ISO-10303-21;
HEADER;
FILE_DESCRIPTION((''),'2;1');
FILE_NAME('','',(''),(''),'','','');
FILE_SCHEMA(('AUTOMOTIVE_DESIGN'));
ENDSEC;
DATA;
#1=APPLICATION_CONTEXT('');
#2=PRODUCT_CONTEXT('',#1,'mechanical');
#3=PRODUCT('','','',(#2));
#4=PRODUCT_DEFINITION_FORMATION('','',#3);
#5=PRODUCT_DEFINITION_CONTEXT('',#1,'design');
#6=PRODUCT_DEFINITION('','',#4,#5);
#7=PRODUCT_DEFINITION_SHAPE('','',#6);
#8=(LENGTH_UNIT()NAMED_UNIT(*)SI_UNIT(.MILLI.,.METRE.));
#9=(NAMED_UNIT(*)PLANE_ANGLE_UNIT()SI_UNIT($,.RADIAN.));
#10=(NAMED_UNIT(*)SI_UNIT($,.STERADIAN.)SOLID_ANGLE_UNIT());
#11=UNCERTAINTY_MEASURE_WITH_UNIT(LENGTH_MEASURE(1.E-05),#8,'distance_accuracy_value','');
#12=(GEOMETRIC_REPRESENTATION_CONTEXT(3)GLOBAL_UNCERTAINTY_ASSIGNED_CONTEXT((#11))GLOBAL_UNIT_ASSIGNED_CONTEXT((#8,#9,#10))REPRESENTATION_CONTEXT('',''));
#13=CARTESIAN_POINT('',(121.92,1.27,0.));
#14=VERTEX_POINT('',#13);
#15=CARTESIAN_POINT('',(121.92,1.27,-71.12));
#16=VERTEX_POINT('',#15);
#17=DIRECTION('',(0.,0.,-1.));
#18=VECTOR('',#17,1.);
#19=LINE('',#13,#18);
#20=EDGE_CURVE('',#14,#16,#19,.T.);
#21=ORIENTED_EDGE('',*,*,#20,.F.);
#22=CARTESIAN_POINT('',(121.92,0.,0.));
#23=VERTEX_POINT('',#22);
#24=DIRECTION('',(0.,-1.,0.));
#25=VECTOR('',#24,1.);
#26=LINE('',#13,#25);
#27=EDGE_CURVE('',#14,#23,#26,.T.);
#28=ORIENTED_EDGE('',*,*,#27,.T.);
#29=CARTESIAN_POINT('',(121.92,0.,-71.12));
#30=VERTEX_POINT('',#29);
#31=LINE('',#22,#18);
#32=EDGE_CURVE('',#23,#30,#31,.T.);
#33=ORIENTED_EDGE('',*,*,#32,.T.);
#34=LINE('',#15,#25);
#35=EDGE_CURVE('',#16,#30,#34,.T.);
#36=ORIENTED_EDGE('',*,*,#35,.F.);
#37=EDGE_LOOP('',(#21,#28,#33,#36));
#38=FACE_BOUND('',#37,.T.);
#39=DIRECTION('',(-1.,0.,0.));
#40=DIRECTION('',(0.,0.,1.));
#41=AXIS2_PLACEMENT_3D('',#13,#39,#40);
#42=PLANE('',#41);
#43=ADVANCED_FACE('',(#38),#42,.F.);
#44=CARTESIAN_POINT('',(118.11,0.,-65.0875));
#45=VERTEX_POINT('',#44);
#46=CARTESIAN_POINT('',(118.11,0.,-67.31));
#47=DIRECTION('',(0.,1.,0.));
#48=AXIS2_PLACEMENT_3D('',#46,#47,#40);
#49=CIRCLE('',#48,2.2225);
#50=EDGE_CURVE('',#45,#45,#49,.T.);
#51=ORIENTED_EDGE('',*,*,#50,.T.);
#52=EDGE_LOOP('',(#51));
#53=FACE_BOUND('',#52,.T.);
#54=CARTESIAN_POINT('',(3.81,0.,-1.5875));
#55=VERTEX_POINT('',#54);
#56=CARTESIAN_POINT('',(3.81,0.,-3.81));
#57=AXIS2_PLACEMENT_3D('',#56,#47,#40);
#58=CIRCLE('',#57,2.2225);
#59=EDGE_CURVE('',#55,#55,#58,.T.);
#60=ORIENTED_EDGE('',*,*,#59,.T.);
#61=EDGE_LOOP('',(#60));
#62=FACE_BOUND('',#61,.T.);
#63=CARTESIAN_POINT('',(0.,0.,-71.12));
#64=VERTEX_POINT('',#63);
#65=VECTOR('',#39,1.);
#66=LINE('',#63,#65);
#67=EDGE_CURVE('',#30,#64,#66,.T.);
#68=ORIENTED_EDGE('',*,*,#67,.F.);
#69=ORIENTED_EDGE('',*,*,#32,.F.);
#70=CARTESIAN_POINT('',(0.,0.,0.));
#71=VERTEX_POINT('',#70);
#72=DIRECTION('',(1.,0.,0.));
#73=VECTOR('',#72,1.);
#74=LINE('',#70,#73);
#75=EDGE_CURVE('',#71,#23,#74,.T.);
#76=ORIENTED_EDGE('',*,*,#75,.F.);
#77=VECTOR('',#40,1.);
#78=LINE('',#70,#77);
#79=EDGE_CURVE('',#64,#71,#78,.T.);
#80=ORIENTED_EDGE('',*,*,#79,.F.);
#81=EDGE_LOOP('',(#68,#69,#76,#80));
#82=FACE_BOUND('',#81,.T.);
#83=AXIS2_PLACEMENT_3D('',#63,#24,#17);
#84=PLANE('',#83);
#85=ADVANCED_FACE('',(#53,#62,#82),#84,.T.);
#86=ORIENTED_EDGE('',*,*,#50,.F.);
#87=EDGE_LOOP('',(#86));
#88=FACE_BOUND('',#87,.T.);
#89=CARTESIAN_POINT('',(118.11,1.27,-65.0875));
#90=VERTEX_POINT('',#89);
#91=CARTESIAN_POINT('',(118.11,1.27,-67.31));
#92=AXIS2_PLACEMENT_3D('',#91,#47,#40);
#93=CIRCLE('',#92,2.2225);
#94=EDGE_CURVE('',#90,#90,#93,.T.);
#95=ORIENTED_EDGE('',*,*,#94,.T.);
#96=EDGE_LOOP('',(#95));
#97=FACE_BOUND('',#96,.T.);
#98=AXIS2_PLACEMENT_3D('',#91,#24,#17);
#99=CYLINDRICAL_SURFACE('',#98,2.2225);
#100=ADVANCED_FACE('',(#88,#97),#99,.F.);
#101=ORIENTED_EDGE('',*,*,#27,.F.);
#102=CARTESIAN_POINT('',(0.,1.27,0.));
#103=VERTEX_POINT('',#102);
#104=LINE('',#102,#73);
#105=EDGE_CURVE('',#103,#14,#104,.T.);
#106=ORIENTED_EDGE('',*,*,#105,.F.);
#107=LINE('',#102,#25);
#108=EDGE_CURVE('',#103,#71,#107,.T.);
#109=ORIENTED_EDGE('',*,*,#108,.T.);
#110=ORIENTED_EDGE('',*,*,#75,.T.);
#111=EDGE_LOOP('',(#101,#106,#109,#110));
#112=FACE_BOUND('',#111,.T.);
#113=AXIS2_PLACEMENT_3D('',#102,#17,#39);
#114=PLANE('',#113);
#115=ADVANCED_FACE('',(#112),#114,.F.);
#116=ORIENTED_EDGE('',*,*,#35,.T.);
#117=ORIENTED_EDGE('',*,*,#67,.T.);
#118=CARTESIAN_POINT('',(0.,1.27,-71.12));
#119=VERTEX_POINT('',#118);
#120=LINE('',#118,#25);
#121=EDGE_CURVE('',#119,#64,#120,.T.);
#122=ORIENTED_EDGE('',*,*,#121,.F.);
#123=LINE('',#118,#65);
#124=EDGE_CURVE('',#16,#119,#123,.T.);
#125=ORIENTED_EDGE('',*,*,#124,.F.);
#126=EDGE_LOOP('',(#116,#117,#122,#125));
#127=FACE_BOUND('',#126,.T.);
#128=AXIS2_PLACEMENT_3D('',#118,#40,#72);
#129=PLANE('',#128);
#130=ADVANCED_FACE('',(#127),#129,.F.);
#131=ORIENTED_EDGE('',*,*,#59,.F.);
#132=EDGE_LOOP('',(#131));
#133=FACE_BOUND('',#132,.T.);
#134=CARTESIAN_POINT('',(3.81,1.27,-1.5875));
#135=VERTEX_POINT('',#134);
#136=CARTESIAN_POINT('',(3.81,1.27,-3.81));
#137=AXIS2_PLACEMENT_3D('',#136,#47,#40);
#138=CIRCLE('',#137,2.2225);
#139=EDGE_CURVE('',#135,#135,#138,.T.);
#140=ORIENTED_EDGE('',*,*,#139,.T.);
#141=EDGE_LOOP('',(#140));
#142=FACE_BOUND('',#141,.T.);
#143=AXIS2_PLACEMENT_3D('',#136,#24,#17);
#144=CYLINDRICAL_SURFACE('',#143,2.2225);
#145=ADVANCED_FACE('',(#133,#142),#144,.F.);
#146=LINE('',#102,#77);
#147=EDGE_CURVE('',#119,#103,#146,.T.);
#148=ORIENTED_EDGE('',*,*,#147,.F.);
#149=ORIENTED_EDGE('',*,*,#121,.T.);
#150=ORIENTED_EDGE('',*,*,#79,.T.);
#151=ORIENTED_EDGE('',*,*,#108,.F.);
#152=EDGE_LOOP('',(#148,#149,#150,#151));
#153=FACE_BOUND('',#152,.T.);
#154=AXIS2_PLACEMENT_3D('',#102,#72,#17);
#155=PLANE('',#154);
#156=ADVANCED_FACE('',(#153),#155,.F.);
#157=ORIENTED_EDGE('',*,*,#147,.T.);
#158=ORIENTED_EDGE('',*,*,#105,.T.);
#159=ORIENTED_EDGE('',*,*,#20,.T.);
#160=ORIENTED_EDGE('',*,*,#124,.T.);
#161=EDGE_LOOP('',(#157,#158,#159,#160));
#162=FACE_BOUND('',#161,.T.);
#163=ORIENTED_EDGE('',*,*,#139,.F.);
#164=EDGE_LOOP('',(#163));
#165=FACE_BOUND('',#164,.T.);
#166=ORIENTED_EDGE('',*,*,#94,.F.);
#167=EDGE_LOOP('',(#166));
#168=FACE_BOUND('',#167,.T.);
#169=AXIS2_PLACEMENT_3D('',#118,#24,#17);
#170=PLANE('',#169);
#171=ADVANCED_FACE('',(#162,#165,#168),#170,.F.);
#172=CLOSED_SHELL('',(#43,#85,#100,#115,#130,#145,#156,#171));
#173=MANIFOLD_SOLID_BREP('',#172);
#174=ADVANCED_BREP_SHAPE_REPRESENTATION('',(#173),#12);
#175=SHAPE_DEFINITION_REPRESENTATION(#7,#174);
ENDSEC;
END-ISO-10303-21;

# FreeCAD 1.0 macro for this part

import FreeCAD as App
import Part
import Sketcher
from FreeCAD import Vector
Q = App.Units.Quantity


def add_polygon(sketch, points):
    """Adds a closed chain of lines whose ends are joined by coincident constraints."""
    first, n = sketch.GeometryCount, len(points)
    for a, b in zip(points, points[1:] + points[:1]):
        sketch.addGeometry(Part.LineSegment(App.Vector(*a, 0), App.Vector(*b, 0)), False)
    for i in range(n):
        sketch.addConstraint(Sketcher.Constraint("Coincident", first + i, 2, first + (i + 1) % n, 1))

doc = App.newDocument("Part")
params = doc.addObject("Spreadsheet::Sheet", "Params")
for row, (alias, value) in enumerate([
    ("sketch1_diameter", "0.175 in"),
    ("sketch1_width", "4.8 in"),
    ("sketch1_height", "2.8 in"),
    ("pad1_length", "0.05 in"),
], start=1):
    params.set(f"A{row}", alias)
    params.set(f"B{row}", "=" + value)
    params.setAlias(f"B{row}", alias)

body = doc.addObject("PartDesign::Body", "Body")

sketch1 = body.newObject("Sketcher::SketchObject", "Sketch")
sketch1.AttachmentSupport = (doc.getObject("XZ_Plane"), [""])
sketch1.MapMode = "FlatFace"
add_polygon(sketch1, [(0, -71.12), (0, 0), (121.92, 0), (121.92, -71.12)])
sketch1.addGeometry(Part.Circle(Vector(3.81, -3.81, 0), Vector(0, 0, 1), 2.2225), False)
sketch1.addGeometry(Part.Circle(Vector(118.11, -67.31, 0), Vector(0, 0, 1), 2.2225), False)
sketch1.addConstraint([
    Sketcher.Constraint("Vertical", 0),
    Sketcher.Constraint("Horizontal", 1),
    Sketcher.Constraint("Vertical", 2),
    Sketcher.Constraint("Horizontal", 3),
    Sketcher.Constraint("Coincident", 0, 2, -1, 1),
    Sketcher.Constraint("Equal", 4, 5),
    Sketcher.Constraint("Diameter", 4, Q("0.175 in")),
    Sketcher.Constraint("DistanceX", 1, 1, 1, 2, Q("4.8 in")),
    Sketcher.Constraint("DistanceY", 0, 1, 0, 2, Q("2.8 in")),
    Sketcher.Constraint("DistanceX", 4, 3, 5, 3, Q("4.5 in")),
    Sketcher.Constraint("DistanceY", 5, 3, 4, 3, Q("2.5 in")),
    Sketcher.Constraint("DistanceX", -1, 1, 4, 3, Q("0.15 in")),
    Sketcher.Constraint("DistanceY", 4, 3, -1, 1, Q("0.15 in")),
])
sketch1.setExpression("Constraints[10]", "Params.sketch1_diameter")
sketch1.setExpression("Constraints[11]", "Params.sketch1_width")
sketch1.setExpression("Constraints[12]", "Params.sketch1_height")
pad1 = body.newObject("PartDesign::Pad", "Pad")
pad1.Profile = sketch1
pad1.setExpression("Length", "Params.pad1_length")
pad1.Reversed = True

doc.recompute()
